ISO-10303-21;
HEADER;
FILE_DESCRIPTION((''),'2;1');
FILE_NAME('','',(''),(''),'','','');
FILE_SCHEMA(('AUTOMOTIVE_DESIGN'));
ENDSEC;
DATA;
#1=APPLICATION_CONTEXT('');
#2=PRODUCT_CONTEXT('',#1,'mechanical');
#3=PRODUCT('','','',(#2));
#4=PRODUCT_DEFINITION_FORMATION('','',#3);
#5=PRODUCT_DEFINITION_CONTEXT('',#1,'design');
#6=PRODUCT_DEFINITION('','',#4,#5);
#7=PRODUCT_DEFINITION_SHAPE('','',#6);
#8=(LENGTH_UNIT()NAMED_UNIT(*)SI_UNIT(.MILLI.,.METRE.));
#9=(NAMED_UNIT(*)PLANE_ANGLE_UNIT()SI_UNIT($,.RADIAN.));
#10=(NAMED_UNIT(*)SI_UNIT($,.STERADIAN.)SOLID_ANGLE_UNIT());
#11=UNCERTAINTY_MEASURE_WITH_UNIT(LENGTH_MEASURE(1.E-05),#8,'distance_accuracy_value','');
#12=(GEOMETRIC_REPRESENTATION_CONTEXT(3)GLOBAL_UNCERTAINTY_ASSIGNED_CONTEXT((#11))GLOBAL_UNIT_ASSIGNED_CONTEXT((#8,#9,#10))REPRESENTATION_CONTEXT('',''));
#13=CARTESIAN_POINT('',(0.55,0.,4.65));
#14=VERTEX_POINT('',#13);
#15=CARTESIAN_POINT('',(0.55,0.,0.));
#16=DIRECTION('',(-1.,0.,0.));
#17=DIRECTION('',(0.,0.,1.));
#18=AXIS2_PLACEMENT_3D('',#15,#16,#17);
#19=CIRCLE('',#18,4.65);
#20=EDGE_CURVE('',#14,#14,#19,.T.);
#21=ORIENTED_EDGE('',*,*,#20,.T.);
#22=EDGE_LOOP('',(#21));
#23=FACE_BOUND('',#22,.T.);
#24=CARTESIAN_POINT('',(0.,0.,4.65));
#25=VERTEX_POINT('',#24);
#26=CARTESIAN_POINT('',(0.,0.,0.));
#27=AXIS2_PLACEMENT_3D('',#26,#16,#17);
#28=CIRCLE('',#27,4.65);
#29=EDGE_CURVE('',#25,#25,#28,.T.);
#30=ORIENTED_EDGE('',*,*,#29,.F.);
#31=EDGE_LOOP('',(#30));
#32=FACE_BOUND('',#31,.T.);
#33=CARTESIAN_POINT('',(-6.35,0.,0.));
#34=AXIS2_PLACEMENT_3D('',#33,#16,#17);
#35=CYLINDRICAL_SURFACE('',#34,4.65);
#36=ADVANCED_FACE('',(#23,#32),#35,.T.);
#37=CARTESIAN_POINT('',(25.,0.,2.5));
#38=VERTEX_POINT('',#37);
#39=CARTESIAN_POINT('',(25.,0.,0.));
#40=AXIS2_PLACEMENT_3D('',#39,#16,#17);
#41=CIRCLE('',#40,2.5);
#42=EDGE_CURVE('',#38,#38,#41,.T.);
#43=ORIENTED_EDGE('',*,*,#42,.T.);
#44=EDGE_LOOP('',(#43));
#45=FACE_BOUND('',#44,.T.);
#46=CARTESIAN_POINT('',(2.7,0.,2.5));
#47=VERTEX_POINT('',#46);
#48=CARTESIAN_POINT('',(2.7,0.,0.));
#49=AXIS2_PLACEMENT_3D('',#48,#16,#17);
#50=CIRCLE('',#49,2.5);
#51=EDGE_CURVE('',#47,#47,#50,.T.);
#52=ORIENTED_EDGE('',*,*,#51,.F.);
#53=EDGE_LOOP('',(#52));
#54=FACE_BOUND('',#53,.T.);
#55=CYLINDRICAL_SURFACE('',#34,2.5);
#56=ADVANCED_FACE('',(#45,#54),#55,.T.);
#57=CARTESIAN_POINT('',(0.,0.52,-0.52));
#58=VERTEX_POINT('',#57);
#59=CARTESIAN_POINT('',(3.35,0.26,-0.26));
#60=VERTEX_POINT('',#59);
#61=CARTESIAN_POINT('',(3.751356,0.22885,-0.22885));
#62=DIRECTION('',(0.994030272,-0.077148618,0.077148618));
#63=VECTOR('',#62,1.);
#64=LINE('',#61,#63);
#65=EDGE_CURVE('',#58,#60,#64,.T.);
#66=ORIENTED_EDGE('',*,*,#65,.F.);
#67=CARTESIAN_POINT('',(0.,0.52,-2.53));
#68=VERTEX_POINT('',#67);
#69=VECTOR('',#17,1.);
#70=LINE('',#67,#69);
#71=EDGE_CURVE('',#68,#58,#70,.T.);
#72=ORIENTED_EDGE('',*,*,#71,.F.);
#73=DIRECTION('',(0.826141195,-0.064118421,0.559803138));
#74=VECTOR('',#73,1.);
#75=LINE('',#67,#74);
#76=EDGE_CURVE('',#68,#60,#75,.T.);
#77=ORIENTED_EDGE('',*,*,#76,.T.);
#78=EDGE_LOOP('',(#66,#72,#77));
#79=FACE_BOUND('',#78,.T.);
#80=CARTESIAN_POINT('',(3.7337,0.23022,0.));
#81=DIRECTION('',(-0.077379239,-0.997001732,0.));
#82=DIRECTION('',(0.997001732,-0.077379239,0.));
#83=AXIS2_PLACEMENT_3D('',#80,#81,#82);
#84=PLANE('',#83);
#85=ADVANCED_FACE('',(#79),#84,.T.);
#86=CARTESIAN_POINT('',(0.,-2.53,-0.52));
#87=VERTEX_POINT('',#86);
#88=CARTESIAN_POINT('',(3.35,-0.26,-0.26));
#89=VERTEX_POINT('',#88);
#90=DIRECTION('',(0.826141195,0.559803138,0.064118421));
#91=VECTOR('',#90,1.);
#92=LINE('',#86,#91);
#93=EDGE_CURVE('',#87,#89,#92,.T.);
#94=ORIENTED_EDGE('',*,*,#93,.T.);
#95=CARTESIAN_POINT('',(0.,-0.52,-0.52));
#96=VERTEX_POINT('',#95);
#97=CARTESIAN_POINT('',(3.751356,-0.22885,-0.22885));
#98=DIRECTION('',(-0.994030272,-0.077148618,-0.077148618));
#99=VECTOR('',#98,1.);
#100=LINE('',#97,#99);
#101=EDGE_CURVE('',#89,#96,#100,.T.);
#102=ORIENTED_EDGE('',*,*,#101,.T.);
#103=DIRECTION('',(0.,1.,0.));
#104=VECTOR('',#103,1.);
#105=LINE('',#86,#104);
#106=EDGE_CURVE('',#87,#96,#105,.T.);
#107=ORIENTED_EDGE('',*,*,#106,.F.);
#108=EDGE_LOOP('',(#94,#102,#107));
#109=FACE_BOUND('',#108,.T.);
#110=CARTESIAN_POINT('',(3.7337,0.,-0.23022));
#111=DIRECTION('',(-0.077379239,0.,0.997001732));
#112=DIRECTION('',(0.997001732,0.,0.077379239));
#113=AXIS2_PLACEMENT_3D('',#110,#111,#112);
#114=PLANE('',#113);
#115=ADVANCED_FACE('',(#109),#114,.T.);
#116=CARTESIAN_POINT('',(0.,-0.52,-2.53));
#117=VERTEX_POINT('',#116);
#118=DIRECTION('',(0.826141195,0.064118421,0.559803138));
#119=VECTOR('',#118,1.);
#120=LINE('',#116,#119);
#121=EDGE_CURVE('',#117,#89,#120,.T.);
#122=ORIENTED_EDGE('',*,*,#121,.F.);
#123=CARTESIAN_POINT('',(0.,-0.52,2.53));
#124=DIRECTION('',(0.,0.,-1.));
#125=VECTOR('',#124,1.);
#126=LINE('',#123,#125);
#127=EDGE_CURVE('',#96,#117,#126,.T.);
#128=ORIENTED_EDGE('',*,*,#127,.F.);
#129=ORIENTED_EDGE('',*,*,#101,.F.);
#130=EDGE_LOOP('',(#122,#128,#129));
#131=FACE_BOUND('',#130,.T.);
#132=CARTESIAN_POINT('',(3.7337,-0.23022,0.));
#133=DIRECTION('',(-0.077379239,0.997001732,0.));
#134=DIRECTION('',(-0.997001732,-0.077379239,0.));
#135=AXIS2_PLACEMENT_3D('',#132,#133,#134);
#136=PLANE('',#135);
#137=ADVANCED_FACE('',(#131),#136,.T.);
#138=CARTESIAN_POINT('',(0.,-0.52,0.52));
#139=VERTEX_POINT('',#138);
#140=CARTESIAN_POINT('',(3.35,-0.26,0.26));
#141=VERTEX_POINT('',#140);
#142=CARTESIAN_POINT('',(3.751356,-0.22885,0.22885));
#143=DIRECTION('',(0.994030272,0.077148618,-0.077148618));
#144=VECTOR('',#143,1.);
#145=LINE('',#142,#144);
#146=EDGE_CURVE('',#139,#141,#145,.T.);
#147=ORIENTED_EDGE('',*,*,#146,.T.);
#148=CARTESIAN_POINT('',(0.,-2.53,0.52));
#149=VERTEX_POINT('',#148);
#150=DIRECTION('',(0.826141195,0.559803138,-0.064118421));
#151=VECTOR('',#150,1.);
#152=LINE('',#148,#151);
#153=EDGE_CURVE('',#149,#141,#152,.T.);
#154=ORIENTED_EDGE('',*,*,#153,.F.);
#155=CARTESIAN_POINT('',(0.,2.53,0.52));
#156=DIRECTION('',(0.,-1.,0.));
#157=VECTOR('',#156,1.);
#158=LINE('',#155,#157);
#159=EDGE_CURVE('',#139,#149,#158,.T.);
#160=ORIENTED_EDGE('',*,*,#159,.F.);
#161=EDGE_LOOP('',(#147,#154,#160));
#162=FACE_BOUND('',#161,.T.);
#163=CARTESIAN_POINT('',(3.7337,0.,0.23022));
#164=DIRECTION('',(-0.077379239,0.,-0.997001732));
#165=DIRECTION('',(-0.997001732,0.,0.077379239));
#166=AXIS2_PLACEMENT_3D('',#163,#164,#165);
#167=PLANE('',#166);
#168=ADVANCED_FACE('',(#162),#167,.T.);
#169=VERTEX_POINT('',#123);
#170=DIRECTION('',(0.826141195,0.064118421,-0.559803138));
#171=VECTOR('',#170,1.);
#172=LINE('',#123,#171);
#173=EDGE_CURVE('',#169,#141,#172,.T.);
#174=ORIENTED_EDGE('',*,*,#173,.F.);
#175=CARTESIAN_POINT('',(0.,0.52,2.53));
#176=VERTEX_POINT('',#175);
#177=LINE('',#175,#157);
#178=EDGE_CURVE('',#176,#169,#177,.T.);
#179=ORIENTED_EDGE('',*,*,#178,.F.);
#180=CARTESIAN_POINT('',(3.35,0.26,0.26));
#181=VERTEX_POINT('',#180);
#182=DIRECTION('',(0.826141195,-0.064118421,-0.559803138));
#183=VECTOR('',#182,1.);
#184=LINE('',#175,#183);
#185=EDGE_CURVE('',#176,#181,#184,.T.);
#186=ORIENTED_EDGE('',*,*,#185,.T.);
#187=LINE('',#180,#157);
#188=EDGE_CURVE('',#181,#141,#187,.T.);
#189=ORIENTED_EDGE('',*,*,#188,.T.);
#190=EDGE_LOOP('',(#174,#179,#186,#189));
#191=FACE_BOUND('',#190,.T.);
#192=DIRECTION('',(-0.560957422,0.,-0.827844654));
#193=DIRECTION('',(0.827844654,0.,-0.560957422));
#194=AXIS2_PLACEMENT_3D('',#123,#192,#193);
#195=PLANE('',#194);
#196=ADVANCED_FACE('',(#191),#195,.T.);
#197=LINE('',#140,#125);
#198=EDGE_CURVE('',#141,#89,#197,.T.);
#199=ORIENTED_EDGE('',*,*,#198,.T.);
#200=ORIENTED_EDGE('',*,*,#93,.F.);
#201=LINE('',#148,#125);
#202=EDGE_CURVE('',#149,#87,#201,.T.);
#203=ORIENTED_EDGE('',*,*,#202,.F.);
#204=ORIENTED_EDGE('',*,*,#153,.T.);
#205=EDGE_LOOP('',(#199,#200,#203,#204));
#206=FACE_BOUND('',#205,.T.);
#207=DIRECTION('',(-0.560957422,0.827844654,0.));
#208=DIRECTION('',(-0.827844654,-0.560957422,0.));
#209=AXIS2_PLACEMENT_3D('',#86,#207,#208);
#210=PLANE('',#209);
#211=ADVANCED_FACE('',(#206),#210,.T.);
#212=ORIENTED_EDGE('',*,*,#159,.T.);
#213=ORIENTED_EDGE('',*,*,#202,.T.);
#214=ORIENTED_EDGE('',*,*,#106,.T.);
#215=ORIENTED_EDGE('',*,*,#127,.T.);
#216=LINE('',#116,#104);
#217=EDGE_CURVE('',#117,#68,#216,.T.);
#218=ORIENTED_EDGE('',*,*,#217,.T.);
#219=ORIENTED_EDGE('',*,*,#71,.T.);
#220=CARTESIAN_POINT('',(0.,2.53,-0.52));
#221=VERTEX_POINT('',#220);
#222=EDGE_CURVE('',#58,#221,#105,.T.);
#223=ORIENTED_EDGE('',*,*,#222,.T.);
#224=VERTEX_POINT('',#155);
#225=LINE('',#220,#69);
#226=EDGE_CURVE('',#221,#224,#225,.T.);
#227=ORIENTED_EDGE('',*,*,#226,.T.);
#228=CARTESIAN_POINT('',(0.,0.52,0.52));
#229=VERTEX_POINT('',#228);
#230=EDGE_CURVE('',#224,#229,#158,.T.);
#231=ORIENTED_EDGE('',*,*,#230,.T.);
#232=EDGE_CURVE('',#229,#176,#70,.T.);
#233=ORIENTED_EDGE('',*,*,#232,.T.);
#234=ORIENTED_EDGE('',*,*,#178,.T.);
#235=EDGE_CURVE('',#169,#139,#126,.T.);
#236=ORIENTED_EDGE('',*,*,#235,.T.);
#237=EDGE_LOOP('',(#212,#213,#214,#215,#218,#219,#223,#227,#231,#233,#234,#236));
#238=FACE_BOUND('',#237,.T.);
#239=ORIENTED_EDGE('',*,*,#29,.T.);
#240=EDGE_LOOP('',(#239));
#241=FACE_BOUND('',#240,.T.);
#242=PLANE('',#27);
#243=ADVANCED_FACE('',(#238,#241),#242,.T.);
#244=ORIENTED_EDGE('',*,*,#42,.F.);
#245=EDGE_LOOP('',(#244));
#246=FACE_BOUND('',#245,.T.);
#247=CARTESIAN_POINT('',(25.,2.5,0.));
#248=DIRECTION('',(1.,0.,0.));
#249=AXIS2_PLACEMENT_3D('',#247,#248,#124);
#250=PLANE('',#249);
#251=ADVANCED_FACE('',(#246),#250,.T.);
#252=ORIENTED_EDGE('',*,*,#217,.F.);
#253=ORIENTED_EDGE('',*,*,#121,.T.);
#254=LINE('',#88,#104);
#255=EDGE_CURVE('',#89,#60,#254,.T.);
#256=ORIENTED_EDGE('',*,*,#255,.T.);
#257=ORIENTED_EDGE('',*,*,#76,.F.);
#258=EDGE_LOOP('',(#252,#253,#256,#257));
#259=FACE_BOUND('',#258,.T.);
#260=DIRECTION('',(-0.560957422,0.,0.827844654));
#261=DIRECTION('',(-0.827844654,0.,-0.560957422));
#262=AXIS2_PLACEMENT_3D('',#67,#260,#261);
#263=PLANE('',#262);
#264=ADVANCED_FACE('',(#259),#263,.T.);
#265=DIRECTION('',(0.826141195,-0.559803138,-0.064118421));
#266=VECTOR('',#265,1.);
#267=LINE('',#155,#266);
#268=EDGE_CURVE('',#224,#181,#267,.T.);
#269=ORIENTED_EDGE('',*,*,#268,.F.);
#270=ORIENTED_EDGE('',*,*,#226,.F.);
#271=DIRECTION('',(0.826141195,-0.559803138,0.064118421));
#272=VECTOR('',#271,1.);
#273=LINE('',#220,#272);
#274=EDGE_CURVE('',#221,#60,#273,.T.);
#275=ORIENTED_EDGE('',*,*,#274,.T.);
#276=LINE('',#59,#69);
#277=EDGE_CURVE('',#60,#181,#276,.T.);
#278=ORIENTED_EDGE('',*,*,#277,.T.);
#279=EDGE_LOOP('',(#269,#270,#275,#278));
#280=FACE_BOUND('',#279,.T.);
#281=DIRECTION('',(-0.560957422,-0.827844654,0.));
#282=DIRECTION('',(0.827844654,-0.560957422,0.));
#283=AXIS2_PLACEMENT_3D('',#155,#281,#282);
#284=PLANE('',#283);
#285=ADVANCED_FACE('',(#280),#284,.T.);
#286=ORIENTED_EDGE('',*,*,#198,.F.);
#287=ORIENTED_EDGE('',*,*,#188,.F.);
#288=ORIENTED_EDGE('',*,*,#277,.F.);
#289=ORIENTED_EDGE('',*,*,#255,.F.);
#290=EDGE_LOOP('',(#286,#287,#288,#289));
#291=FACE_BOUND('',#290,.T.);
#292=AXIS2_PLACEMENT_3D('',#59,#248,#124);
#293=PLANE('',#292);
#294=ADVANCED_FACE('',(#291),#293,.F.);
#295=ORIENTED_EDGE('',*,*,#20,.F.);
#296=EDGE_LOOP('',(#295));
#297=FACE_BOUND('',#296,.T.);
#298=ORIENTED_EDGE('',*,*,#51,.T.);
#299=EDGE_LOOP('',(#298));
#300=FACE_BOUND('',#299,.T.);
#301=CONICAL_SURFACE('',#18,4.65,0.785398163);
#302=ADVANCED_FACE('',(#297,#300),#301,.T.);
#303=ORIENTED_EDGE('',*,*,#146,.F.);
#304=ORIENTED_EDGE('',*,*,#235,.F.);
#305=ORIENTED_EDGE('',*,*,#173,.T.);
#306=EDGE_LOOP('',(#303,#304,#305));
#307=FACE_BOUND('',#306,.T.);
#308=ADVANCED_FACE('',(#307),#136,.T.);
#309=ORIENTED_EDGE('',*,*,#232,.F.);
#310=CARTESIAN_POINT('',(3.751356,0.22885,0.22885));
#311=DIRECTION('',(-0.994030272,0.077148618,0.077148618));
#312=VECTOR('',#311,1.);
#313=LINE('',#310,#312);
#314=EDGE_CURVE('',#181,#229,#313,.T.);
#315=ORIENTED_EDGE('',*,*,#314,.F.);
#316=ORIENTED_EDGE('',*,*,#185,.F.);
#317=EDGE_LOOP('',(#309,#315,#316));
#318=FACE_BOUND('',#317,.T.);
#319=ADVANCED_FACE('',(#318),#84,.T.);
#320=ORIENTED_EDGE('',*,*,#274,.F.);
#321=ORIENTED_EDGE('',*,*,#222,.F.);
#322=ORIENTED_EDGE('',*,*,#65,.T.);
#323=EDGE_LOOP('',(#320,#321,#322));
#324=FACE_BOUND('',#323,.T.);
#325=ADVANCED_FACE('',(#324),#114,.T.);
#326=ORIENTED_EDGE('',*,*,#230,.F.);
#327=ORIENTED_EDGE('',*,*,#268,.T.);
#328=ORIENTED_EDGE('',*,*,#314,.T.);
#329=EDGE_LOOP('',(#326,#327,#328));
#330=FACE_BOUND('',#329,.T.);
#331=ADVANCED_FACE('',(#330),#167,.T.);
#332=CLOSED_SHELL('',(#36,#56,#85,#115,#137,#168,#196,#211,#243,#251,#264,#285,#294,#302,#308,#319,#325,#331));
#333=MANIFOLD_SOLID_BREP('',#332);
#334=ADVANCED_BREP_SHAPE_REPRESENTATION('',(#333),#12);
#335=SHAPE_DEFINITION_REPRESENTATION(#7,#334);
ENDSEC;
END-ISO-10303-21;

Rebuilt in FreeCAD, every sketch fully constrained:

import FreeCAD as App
import Part
import Sketcher
Q = App.Units.Quantity


def add_polygon(sketch, points):
    """Adds a closed chain of lines whose ends are joined by coincident constraints."""
    first, n = sketch.GeometryCount, len(points)
    for a, b in zip(points, points[1:] + points[:1]):
        sketch.addGeometry(Part.LineSegment(App.Vector(*a, 0), App.Vector(*b, 0)), False)
    for i in range(n):
        sketch.addConstraint(Sketcher.Constraint("Coincident", first + i, 2, first + (i + 1) % n, 1))

doc = App.newDocument("Part")
body = doc.addObject("PartDesign::Body", "Body")

# Sketch on XY plane
sketch1 = body.newObject("Sketcher::SketchObject", "Sketch")
sketch1.AttachmentSupport = (doc.getObject("XY_Plane"), [""])
sketch1.MapMode = "FlatFace"
add_polygon(sketch1, [(0, 4.7), (0, 0), (25, 0), (25, 2.5), (2.7, 2.5), (0.6, 4.7)])  # lines 0-5
sketch1.addConstraint(Sketcher.Constraint("Vertical", 0))
sketch1.addConstraint(Sketcher.Constraint("Horizontal", 1))
sketch1.addConstraint(Sketcher.Constraint("Vertical", 2))
sketch1.addConstraint(Sketcher.Constraint("Horizontal", 3))
sketch1.addConstraint(Sketcher.Constraint("Horizontal", 5))
sketch1.addConstraint(Sketcher.Constraint("Coincident", 0, 2, -1, 1))
sketch1.addConstraint(Sketcher.Constraint("DistanceX", 1, 1, 1, 2, 25.0))
sketch1.addConstraint(Sketcher.Constraint("Angle", 4, Q("135 deg")))
sketch1.addConstraint(Sketcher.Constraint("DistanceX", 3, 2, 3, 1, 22.3))
sketch1.addConstraint(Sketcher.Constraint("DistanceY", 2, 1, 2, 2, 2.5))
sketch1.addConstraint(Sketcher.Constraint("DistanceX", 5, 2, 5, 1, 0.55))
revolution = body.newObject("PartDesign::Revolution", "Revolution")
revolution.Profile = sketch1
revolution.ReferenceAxis = (sketch1, ["H_Axis"])
revolution.Angle = 360

# Sketch on YZ plane
sketch2 = body.newObject("Sketcher::SketchObject", "Sketch001")
sketch2.AttachmentSupport = (doc.getObject("YZ_Plane"), [""])
sketch2.MapMode = "FlatFace"
add_polygon(sketch2, [(2.5, 0.5), (2.5, -0.5), (-2.5, -0.5), (-2.5, 0.5)])  # lines 0-3
sketch2.addConstraint(Sketcher.Constraint("Vertical", 0))
sketch2.addConstraint(Sketcher.Constraint("Horizontal", 1))
sketch2.addConstraint(Sketcher.Constraint("Vertical", 2))
sketch2.addConstraint(Sketcher.Constraint("Horizontal", 3))
sketch2.addConstraint(Sketcher.Constraint("Symmetric", 0, 2, 2, 2, -1, 1))
sketch2.addConstraint(Sketcher.Constraint("DistanceX", 1, 2, 1, 1, 5.06))
sketch2.addConstraint(Sketcher.Constraint("DistanceY", 0, 2, 0, 1, 1.04))

# Sketch on YZ plane
sketch3 = body.newObject("Sketcher::SketchObject", "Sketch002")
sketch3.AttachmentSupport = (doc.getObject("YZ_Plane"), [""])
sketch3.MapMode = "FlatFace"
sketch3.AttachmentOffset = App.Placement(App.Vector(0, 0, 3.35), App.Rotation())
add_polygon(sketch3, [(0.3, 0.3), (0.3, -0.3), (-0.3, -0.3), (-0.3, 0.3)])  # lines 0-3
sketch3.addConstraint(Sketcher.Constraint("Vertical", 0))
sketch3.addConstraint(Sketcher.Constraint("Horizontal", 1))
sketch3.addConstraint(Sketcher.Constraint("Vertical", 2))
sketch3.addConstraint(Sketcher.Constraint("Horizontal", 3))
sketch3.addConstraint(Sketcher.Constraint("Symmetric", 0, 2, 2, 2, -1, 1))
sketch3.addConstraint(Sketcher.Constraint("Equal", 3, 0))
sketch3.addConstraint(Sketcher.Constraint("DistanceX", 1, 2, 1, 1, 0.52))

subtractiveloft = body.newObject("PartDesign::SubtractiveLoft", "SubtractiveLoft")
subtractiveloft.Profile = sketch2
subtractiveloft.Sections = [sketch3]
doc.recompute()

polarpattern = body.newObject("PartDesign::PolarPattern", "PolarPattern")
polarpattern.Originals = [subtractiveloft]
polarpattern.Axis = (doc.getObject("X_Axis"), [""])
polarpattern.Angle = 90
polarpattern.Occurrences = 2
body.Tip = polarpattern

doc.recompute()
